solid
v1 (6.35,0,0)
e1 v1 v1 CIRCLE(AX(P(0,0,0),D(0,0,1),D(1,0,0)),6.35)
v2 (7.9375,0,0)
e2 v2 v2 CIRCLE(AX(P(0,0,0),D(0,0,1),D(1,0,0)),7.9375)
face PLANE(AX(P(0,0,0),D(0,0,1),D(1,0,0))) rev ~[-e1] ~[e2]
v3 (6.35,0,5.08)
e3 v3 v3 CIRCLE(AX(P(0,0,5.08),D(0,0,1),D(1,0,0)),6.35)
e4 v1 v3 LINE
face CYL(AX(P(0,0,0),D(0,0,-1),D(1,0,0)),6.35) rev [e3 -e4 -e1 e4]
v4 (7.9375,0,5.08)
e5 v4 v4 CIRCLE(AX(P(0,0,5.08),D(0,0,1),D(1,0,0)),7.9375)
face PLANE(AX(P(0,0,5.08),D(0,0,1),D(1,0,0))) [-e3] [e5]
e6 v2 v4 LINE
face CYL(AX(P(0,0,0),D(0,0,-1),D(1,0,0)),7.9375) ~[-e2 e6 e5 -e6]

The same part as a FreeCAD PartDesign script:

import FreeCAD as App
import Part
import Sketcher

V = App.Vector
Q = App.Units.Quantity

doc = App.newDocument("Part")
body = doc.addObject("PartDesign::Body", "Body")

# Sketch on XY plane
sketch1 = body.newObject("Sketcher::SketchObject", "Sketch")
sketch1.AttachmentSupport = (doc.getObject("XY_Plane"), [""])
sketch1.MapMode = "FlatFace"
sketch1.addGeometry([
    Part.Circle(V(0, 0, 0), V(0, 0, 1), 7.9375),
    Part.Circle(V(0, 0, 0), V(0, 0, 1), 6.35),
], False)
sketch1.addConstraint([
    Sketcher.Constraint("Coincident", 0, 3, -1, 1),
    Sketcher.Constraint("Coincident", 1, 3, -1, 1),
    Sketcher.Constraint("Diameter", 1, Q("0.5 in")),
    Sketcher.Constraint("Diameter", 0, Q("0.625 in")),
])
pad1 = body.newObject("PartDesign::Pad", "Pad")
pad1.Profile = sketch1
pad1.Length = Q("0.2 in")

doc.recompute()
